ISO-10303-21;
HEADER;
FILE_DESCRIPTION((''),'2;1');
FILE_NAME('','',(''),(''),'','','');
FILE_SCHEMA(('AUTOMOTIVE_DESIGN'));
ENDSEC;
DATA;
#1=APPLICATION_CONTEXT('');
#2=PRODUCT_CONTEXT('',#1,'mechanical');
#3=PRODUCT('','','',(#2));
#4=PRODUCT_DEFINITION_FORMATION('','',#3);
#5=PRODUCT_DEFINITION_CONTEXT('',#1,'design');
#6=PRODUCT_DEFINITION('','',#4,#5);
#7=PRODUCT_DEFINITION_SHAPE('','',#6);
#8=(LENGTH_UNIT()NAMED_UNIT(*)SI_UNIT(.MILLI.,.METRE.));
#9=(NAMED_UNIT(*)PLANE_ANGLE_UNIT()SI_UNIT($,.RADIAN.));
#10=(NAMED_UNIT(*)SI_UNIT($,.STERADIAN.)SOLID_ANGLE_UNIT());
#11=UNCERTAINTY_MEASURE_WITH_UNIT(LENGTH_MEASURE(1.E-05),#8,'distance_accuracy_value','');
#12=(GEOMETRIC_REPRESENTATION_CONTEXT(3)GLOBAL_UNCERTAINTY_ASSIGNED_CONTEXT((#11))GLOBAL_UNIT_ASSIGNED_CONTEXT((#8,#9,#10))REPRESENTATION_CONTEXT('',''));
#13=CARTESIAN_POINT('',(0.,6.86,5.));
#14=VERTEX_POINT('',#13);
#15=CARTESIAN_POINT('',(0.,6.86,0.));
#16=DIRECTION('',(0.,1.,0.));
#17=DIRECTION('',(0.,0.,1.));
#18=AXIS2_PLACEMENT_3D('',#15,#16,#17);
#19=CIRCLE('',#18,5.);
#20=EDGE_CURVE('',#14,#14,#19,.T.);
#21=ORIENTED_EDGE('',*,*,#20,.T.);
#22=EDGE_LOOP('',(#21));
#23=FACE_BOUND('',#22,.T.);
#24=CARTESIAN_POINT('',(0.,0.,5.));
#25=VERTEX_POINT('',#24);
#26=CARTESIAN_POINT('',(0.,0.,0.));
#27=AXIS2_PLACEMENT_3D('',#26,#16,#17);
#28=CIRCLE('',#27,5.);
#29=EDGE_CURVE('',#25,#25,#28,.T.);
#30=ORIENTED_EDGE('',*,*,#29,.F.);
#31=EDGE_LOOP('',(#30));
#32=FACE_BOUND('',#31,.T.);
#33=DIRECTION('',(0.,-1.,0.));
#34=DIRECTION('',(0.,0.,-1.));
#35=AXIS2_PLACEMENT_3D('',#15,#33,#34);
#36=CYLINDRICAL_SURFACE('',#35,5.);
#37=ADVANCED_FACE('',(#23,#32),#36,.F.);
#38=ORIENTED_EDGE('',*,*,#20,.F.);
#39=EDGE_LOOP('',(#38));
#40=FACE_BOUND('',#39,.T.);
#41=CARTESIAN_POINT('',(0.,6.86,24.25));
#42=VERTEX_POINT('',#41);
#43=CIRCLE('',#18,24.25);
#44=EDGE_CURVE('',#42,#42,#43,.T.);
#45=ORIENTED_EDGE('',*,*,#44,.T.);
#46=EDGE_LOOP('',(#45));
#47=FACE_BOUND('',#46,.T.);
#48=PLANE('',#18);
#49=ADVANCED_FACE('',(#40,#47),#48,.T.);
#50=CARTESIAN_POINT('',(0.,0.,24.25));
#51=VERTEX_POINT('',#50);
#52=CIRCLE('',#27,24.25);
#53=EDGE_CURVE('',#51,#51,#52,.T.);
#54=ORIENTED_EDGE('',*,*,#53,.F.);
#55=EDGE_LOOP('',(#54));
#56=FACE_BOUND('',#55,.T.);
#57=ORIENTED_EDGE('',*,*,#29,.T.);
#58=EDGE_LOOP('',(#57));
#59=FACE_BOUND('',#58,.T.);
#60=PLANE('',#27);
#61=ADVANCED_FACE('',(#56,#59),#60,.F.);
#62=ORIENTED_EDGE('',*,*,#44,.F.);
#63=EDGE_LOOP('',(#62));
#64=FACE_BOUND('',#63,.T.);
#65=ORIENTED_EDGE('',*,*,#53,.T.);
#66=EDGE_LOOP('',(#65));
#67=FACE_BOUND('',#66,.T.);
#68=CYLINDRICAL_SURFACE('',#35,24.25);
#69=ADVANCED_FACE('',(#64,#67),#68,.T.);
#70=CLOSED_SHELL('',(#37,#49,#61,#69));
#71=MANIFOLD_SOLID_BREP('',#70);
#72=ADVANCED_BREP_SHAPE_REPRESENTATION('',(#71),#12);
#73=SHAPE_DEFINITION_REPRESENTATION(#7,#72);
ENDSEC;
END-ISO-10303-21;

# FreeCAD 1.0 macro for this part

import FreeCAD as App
import Part
import Sketcher

V = App.Vector

doc = App.newDocument("Part")
body = doc.addObject("PartDesign::Body", "Body")

sketch1 = body.newObject("Sketcher::SketchObject", "Sketch")
sketch1.AttachmentSupport = (doc.getObject("XZ_Plane"), [""])
sketch1.MapMode = "FlatFace"
sketch1.addGeometry(Part.Circle(V(0, 0, 0), V(0, 0, 1), 24), False)
sketch1.addConstraint(Sketcher.Constraint("Coincident", 0, 3, -1, 1))
sketch1.addConstraint(Sketcher.Constraint("Diameter", 0, 48.5))
pad1 = body.newObject("PartDesign::Pad", "Pad")
pad1.Profile = sketch1
pad1.Length = 6.86
pad1.Reversed = True

sketch2 = body.newObject("Sketcher::SketchObject", "Sketch001")
sketch2.AttachmentSupport = (doc.getObject("XZ_Plane"), [""])
sketch2.MapMode = "FlatFace"
sketch2.addGeometry(Part.Circle(V(0, 0, 0), V(0, 0, 1), 5), False)
sketch2.addConstraint(Sketcher.Constraint("Coincident", 0, 3, -1, 1))
sketch2.addConstraint(Sketcher.Constraint("Diameter", 0, 10.0))
pocket1 = body.newObject("PartDesign::Pocket", "Pocket")
pocket1.Profile = sketch2
pocket1.Length = 6.86

doc.recompute()
